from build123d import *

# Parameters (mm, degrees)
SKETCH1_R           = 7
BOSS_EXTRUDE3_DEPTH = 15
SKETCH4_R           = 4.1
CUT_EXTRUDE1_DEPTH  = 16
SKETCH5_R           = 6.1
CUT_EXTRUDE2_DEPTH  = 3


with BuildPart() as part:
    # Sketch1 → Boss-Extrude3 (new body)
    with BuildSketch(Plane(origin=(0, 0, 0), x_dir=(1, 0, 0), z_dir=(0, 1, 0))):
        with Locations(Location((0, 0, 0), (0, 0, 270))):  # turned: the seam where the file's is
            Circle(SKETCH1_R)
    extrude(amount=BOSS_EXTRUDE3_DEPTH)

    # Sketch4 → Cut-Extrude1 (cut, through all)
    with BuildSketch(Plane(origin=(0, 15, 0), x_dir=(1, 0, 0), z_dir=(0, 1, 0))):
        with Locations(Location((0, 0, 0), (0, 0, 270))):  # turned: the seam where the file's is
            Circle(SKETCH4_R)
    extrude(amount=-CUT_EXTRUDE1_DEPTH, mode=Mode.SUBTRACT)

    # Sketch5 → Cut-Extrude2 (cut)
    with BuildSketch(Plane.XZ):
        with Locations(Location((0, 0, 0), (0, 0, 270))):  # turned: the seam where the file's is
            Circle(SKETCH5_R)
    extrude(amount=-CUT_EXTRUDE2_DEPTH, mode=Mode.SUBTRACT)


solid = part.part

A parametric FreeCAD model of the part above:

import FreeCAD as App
import Part
import Sketcher

V = App.Vector

doc = App.newDocument("Part")
body = doc.addObject("PartDesign::Body", "Body")

# Sketch on XZ plane
sketch1 = body.newObject("Sketcher::SketchObject", "Sketch")
sketch1.AttachmentSupport = (doc.getObject("XZ_Plane"), [""])
sketch1.MapMode = "FlatFace"
sketch1.addGeometry(Part.Circle(V(0, 0, 0), V(0, 0, 1), 7), False)
sketch1.addConstraint(Sketcher.Constraint("Coincident", 0, 3, -1, 1))
sketch1.addConstraint(Sketcher.Constraint("Diameter", 0, 14.0))
pad1 = body.newObject("PartDesign::Pad", "Pad")
pad1.Profile = sketch1
pad1.Length = 15
pad1.Reversed = True

# Sketch on XZ plane
sketch2 = body.newObject("Sketcher::SketchObject", "Sketch001")
sketch2.AttachmentSupport = (doc.getObject("XZ_Plane"), [""])
sketch2.MapMode = "FlatFace"
sketch2.AttachmentOffset = App.Placement(V(0, 0, -15), App.Rotation())
sketch2.addGeometry(Part.Circle(V(0, 0, 0), V(0, 0, 1), 4.1), False)
sketch2.addConstraint(Sketcher.Constraint("Coincident", 0, 3, -1, 1))
sketch2.addConstraint(Sketcher.Constraint("Diameter", 0, 8.2))
pocket1 = body.newObject("PartDesign::Pocket", "Pocket")
pocket1.Profile = sketch2
pocket1.Type = "ThroughAll"
pocket1.Reversed = True

# Sketch on XZ plane
sketch3 = body.newObject("Sketcher::SketchObject", "Sketch002")
sketch3.AttachmentSupport = (doc.getObject("XZ_Plane"), [""])
sketch3.MapMode = "FlatFace"
sketch3.addGeometry(Part.Circle(V(0, 0, 0), V(0, 0, 1), 6), False)
sketch3.addConstraint(Sketcher.Constraint("Coincident", 0, 3, -1, 1))
sketch3.addConstraint(Sketcher.Constraint("Diameter", 0, 12.2))
pocket2 = body.newObject("PartDesign::Pocket", "Pocket001")
pocket2.Profile = sketch3
pocket2.Length = 3

doc.recompute()
